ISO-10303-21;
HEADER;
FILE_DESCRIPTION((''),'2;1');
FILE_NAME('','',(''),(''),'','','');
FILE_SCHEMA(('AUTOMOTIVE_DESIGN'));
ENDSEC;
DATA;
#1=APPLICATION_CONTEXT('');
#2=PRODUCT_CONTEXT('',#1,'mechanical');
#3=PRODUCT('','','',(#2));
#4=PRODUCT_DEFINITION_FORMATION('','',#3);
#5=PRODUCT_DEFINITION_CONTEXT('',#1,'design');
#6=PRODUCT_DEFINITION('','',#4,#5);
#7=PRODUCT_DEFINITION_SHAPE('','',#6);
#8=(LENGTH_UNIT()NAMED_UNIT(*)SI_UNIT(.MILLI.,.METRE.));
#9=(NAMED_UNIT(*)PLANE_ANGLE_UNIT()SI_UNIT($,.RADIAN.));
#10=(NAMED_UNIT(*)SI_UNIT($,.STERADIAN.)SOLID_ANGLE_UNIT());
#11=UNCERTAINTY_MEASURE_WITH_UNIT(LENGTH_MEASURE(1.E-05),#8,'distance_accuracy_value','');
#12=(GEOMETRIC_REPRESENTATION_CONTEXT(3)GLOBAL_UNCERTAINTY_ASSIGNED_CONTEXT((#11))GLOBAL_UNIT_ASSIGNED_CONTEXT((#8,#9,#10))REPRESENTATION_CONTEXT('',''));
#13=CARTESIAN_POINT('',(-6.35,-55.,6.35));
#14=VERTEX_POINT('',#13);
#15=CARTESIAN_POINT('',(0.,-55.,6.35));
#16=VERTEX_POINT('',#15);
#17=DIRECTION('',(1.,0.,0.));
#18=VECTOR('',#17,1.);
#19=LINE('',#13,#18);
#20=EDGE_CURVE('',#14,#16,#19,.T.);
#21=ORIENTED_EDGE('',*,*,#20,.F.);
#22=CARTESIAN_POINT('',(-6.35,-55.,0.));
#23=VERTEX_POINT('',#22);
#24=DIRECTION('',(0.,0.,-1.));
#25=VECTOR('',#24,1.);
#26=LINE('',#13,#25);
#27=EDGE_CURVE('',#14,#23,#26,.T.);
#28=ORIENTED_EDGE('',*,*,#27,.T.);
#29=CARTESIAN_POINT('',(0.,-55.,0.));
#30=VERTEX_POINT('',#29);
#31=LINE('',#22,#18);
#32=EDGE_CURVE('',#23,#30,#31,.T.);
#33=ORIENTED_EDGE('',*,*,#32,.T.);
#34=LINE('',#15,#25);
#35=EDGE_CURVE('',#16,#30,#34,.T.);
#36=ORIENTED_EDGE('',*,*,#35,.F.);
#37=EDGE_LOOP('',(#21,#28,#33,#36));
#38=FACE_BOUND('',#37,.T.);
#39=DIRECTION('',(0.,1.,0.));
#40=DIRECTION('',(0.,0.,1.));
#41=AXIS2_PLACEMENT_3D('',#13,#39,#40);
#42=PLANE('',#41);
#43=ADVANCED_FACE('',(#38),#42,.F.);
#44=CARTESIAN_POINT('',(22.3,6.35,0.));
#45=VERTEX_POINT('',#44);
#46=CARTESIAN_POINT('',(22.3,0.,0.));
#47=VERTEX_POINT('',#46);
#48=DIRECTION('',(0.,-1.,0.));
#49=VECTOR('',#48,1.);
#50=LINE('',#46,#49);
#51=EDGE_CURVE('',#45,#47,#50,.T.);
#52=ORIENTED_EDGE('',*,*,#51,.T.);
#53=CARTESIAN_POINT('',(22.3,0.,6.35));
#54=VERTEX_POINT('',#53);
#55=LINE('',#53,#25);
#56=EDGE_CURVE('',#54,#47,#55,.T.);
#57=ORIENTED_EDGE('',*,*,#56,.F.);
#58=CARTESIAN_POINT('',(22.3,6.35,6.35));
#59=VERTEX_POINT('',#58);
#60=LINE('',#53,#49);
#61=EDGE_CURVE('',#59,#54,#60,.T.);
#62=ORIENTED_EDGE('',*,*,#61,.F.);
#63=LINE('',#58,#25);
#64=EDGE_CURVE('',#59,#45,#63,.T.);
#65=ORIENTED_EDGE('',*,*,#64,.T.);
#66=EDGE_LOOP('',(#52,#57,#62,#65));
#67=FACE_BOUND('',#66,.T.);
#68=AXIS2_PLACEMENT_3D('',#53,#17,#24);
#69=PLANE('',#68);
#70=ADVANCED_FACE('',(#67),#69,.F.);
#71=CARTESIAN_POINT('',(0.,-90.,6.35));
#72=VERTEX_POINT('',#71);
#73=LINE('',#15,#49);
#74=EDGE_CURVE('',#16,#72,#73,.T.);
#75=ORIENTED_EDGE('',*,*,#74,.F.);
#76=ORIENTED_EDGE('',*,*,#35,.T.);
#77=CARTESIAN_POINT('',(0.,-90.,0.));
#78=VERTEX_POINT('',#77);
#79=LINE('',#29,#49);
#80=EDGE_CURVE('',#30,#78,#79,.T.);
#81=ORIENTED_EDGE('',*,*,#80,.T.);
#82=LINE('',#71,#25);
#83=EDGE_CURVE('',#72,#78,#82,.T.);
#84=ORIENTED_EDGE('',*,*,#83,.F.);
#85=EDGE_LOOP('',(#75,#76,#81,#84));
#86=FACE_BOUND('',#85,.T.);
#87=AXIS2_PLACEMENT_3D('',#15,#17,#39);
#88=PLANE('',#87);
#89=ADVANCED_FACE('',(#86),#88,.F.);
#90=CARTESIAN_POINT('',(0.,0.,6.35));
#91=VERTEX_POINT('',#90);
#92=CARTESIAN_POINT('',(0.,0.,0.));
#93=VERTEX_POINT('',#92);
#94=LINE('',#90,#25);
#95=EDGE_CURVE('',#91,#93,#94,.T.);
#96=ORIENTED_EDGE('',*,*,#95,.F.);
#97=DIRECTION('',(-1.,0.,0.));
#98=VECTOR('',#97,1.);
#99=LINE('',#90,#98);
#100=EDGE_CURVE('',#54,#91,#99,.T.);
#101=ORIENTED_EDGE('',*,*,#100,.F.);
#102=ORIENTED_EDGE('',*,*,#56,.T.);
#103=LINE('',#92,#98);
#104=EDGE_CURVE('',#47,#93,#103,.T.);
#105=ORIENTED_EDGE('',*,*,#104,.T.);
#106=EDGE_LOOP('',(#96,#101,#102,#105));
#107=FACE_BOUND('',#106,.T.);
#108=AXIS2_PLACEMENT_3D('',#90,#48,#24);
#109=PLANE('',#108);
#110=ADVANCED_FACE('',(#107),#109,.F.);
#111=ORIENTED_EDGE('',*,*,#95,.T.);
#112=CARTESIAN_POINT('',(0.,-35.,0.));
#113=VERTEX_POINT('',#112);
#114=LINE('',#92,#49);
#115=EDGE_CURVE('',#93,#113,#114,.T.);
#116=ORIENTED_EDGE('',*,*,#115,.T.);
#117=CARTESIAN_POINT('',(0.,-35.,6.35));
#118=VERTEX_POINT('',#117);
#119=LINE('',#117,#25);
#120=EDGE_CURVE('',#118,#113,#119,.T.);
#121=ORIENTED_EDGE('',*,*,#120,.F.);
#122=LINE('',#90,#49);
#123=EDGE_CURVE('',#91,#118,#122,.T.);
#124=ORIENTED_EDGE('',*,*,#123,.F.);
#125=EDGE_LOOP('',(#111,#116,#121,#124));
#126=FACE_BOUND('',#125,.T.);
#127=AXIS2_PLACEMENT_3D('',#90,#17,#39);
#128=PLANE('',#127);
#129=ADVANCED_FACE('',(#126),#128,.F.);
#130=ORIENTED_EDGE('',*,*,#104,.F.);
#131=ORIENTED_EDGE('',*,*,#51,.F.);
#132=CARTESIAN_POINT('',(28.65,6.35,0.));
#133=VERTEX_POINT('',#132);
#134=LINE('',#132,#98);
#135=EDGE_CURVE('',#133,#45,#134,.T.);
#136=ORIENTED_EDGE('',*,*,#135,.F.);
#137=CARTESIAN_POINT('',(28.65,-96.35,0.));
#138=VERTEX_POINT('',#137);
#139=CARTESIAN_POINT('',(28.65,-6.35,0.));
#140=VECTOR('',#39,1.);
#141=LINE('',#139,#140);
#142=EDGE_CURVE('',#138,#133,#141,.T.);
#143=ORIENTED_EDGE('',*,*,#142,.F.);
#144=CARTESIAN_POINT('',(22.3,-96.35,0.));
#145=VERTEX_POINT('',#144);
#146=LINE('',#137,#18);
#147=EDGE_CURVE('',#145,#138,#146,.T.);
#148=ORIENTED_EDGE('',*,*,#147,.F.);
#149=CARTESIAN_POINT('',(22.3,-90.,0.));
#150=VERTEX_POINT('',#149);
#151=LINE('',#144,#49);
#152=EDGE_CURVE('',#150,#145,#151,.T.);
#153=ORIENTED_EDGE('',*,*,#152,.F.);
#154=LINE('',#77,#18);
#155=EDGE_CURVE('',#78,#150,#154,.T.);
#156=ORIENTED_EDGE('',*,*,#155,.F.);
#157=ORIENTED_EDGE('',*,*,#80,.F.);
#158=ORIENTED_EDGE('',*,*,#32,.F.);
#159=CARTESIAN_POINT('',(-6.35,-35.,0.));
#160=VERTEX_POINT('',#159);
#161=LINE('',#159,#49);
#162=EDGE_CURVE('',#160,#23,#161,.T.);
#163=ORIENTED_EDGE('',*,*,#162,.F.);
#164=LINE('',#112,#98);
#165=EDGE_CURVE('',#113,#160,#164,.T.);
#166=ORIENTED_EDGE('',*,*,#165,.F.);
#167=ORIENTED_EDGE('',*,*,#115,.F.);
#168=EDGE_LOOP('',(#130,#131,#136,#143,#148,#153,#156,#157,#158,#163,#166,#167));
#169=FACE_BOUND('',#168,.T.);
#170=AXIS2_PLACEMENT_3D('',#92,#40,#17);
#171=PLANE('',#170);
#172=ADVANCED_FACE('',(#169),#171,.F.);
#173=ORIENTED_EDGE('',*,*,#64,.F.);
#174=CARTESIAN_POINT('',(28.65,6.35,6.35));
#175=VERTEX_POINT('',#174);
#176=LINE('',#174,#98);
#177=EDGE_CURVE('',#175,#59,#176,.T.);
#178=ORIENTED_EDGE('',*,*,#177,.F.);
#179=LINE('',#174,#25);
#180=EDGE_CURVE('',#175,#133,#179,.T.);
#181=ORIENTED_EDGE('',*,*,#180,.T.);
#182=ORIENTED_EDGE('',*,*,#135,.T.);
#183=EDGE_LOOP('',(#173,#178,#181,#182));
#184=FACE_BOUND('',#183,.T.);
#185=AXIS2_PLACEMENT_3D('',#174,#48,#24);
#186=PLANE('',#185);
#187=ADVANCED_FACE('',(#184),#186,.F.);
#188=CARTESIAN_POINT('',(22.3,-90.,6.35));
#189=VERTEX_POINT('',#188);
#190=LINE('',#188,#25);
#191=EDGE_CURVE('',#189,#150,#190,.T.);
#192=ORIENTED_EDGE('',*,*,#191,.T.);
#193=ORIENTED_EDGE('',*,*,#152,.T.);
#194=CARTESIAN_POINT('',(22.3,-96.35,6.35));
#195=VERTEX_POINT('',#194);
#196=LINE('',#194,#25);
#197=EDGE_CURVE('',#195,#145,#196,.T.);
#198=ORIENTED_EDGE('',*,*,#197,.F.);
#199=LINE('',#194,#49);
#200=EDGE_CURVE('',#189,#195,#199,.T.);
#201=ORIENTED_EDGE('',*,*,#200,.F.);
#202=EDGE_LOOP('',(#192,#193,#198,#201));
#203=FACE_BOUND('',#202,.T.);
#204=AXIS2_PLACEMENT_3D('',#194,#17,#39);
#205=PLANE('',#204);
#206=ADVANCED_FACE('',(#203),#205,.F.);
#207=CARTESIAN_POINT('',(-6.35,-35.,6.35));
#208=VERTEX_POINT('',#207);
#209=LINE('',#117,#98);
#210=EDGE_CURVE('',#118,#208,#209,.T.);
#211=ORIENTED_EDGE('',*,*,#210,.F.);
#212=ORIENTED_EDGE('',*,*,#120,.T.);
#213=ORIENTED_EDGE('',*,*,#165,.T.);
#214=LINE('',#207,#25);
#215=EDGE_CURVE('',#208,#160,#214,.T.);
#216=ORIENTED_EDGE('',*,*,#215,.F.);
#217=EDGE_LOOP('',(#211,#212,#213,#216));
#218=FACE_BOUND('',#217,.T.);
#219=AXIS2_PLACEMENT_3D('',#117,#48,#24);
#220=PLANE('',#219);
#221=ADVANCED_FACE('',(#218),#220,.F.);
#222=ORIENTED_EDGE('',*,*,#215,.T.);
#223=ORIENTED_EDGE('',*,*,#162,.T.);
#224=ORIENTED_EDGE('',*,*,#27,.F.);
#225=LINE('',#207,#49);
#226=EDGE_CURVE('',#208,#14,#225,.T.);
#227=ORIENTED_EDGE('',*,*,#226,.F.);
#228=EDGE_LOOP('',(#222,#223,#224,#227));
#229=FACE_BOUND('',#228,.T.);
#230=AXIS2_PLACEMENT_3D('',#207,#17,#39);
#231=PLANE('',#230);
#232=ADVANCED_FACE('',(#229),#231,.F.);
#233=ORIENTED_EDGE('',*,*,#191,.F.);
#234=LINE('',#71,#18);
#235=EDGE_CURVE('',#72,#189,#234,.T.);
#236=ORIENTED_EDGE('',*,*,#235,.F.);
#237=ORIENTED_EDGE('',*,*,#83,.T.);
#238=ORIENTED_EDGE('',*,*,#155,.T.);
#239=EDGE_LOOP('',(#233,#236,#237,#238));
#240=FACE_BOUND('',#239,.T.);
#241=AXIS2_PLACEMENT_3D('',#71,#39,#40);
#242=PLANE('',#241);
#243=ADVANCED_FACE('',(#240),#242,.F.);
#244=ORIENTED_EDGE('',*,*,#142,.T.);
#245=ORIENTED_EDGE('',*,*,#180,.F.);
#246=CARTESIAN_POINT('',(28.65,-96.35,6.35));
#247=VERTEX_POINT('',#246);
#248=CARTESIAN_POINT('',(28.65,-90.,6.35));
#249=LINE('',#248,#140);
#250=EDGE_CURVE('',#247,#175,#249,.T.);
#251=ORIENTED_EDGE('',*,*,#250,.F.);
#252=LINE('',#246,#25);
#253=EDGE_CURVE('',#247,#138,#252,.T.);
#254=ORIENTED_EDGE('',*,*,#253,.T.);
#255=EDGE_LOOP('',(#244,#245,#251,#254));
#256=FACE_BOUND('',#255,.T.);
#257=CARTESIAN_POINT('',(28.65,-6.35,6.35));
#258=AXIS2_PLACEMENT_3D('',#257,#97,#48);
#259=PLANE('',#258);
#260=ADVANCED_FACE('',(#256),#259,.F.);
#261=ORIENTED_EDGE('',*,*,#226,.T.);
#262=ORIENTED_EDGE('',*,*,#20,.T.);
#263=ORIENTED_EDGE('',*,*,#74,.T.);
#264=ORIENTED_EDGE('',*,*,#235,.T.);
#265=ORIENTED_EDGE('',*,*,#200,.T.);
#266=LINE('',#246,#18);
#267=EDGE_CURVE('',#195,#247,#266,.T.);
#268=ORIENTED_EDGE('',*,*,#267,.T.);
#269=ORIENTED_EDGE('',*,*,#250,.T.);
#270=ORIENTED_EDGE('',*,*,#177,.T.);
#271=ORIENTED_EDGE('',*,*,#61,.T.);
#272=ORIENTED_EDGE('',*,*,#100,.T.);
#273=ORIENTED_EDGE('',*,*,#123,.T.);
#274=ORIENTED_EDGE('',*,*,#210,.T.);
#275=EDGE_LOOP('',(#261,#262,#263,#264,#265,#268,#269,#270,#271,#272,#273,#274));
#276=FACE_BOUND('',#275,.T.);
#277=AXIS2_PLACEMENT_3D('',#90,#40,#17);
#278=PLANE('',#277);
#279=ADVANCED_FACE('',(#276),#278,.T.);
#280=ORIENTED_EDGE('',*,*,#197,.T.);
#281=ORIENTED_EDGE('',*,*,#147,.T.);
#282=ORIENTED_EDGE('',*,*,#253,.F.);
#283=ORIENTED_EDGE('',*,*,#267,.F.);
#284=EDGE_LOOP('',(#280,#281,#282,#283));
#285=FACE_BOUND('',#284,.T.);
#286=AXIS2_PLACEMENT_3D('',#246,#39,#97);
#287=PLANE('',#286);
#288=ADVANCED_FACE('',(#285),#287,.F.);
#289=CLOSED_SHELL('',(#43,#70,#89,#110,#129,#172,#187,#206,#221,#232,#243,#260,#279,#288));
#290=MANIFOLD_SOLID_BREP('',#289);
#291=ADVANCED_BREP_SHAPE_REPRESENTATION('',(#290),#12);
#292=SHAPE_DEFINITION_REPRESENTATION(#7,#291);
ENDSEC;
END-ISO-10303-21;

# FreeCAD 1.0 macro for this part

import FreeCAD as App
import Part
import Sketcher

V = App.Vector
Q = App.Units.Quantity

doc = App.newDocument("Part")
body = doc.addObject("PartDesign::Body", "Body")

# Sketch on XY plane
sketch1 = body.newObject("Sketcher::SketchObject", "Sketch")
sketch1.AttachmentSupport = (doc.getObject("XY_Plane"), [""])
sketch1.MapMode = "FlatFace"
sketch1.addGeometry([
    Part.LineSegment(V(0, 0, 0), V(0, -35, 0)),  # 0
    Part.LineSegment(V(0, -35, 0), V(-6.35, -35, 0)),  # 1
    Part.LineSegment(V(-6.35, -35, 0), V(-6.35, -55, 0)),  # 2
    Part.LineSegment(V(-6.35, -55, 0), V(0, -55, 0)),  # 3
    Part.LineSegment(V(0, -55, 0), V(0, -90, 0)),  # 4
    Part.LineSegment(V(0, -90, 0), V(22.3, -90, 0)),  # 5
    Part.LineSegment(V(22.3, -90, 0), V(22.3, -96.35, 0)),  # 6
    Part.LineSegment(V(22.3, -96.35, 0), V(28.65, -96.35, 0)),  # 7
    Part.LineSegment(V(28.65, -96.35, 0), V(28.65, 6.35, 0)),  # 8
    Part.LineSegment(V(28.65, 6.35, 0), V(22.3, 6.35, 0)),  # 9
    Part.LineSegment(V(22.3, 6.35, 0), V(22.3, 0, 0)),  # 10
    Part.LineSegment(V(22.3, 0, 0), V(0, 0, 0)),  # 11
], False)
sketch1.addConstraint([
    Sketcher.Constraint("Coincident", 0, 2, 1, 1),
    Sketcher.Constraint("Coincident", 1, 2, 2, 1),
    Sketcher.Constraint("Coincident", 2, 2, 3, 1),
    Sketcher.Constraint("Coincident", 3, 2, 4, 1),
    Sketcher.Constraint("Coincident", 4, 2, 5, 1),
    Sketcher.Constraint("Coincident", 5, 2, 6, 1),
    Sketcher.Constraint("Coincident", 6, 2, 7, 1),
    Sketcher.Constraint("Coincident", 7, 2, 8, 1),
    Sketcher.Constraint("Coincident", 8, 2, 9, 1),
    Sketcher.Constraint("Coincident", 9, 2, 10, 1),
    Sketcher.Constraint("Coincident", 10, 2, 11, 1),
    Sketcher.Constraint("Coincident", 11, 2, 0, 1),
    Sketcher.Constraint("Vertical", 0),
    Sketcher.Constraint("Horizontal", 1),
    Sketcher.Constraint("Vertical", 2),
    Sketcher.Constraint("Horizontal", 3),
    Sketcher.Constraint("Vertical", 4),
    Sketcher.Constraint("Horizontal", 5),
    Sketcher.Constraint("Vertical", 6),
    Sketcher.Constraint("Horizontal", 7),
    Sketcher.Constraint("Vertical", 8),
    Sketcher.Constraint("Horizontal", 9),
    Sketcher.Constraint("Vertical", 10),
    Sketcher.Constraint("Horizontal", 11),
    Sketcher.Constraint("Coincident", 11, 2, -1, 1),
    Sketcher.Constraint("PointOnObject", 3, 2, -2),
    Sketcher.Constraint("Vertical", 6, 2, 9, 2),
    Sketcher.Constraint("Equal", 3, 7),
    Sketcher.Constraint("Equal", 0, 4),
    Sketcher.Constraint("Equal", 9, 6),
    Sketcher.Constraint("Equal", 6, 10),
    Sketcher.Constraint("DistanceY", 0, 2, 0, 1, Q("35 mm")),
    Sketcher.Constraint("DistanceY", 2, 2, 2, 1, Q("20 mm")),
    Sketcher.Constraint("DistanceX", 5, 1, 5, 2, Q("22.3 mm")),
    Sketcher.Constraint("DistanceY", 8, 1, 8, 2, Q("102.7 mm")),
])
pad1 = body.newObject("PartDesign::Pad", "Pad")
pad1.Profile = sketch1
pad1.Length = 6.35

doc.recompute()
